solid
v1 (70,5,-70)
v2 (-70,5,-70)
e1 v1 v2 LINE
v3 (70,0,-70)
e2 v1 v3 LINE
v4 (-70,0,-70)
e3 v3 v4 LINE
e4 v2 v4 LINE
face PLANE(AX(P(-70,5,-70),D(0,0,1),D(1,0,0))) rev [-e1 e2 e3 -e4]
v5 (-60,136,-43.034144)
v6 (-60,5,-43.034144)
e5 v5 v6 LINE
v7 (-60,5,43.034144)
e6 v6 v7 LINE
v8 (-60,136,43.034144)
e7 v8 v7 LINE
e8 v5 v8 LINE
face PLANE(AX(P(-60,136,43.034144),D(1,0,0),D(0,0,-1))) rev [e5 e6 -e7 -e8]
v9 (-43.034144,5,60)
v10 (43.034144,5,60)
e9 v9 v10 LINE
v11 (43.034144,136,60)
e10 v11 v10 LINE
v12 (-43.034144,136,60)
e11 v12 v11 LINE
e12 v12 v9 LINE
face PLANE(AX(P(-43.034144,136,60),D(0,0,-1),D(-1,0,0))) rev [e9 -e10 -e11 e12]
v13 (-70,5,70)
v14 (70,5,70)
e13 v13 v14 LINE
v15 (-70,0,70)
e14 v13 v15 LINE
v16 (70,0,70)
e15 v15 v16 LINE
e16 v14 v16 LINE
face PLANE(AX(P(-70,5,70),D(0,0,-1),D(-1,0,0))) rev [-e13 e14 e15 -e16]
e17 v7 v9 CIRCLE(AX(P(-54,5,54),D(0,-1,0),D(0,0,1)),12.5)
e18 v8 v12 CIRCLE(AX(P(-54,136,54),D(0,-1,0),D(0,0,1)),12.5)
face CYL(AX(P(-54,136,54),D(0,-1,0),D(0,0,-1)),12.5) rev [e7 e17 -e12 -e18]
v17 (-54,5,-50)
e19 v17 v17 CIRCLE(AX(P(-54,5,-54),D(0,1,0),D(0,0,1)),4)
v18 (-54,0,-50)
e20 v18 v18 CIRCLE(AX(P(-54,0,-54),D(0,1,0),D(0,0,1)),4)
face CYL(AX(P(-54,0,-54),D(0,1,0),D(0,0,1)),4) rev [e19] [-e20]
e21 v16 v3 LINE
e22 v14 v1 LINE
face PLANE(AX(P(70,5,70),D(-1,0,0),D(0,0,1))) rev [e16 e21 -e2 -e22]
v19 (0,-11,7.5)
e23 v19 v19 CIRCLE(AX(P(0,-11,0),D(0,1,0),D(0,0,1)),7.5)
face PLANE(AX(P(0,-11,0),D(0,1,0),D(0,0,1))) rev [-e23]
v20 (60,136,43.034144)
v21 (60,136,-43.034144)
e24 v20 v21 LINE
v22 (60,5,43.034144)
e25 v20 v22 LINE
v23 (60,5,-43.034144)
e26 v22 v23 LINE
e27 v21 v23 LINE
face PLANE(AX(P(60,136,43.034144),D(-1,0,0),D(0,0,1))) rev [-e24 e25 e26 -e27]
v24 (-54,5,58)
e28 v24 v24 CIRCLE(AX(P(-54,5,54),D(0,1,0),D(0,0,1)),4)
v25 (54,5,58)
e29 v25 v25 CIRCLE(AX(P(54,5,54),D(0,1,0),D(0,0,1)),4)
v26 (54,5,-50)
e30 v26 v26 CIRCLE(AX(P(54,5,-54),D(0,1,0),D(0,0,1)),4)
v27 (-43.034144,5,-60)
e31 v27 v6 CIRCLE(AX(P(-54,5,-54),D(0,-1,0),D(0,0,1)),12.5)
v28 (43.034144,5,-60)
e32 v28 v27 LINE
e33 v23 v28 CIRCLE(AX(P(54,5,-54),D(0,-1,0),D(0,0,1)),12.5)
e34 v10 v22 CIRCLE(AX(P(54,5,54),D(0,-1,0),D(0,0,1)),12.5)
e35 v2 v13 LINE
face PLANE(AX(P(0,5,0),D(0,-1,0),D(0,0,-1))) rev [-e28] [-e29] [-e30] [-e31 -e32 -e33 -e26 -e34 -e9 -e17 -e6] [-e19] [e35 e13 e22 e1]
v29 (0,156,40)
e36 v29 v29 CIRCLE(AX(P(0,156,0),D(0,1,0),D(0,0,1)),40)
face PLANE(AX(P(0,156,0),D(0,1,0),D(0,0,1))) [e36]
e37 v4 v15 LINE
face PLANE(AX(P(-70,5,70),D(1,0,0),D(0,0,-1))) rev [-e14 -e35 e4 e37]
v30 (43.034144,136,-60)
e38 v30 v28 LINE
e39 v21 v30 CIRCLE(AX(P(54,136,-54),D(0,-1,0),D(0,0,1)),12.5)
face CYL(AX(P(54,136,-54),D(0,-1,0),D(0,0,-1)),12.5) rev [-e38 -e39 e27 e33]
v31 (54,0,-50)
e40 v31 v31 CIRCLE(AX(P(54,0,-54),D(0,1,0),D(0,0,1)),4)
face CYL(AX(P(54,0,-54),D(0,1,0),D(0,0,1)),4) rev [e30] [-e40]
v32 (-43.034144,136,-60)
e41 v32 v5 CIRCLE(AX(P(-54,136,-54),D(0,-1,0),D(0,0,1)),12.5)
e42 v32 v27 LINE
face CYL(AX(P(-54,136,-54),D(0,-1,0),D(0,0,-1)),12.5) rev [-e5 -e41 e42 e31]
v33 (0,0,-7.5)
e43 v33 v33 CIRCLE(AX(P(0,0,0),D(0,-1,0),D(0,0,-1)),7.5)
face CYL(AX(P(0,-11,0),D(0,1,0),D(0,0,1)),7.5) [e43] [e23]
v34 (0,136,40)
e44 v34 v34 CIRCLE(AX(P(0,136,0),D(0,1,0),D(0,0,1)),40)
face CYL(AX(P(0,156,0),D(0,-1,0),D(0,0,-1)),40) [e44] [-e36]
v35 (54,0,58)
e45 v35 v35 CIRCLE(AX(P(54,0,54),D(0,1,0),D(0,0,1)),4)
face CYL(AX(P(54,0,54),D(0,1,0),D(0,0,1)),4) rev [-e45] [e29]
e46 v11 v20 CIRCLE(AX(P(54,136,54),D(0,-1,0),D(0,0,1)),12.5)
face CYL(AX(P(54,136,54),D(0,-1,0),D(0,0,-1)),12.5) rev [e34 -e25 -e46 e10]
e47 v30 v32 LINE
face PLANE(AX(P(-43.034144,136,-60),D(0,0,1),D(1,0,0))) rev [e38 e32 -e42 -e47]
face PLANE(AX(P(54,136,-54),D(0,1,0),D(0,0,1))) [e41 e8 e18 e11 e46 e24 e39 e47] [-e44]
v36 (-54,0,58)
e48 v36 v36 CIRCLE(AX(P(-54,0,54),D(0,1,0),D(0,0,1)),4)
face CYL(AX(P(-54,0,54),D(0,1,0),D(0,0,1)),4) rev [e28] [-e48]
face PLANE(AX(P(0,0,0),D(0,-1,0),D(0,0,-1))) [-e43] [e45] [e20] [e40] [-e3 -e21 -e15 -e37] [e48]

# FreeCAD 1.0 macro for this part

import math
import FreeCAD as App
import Part
import Sketcher
Q = App.Units.Quantity

doc = App.newDocument("Part")
params = doc.addObject("Spreadsheet::Sheet", "Params")
for row, (alias, value) in enumerate([
    ("sketch1_width", "140 mm"),
    ("pad1_length", "5 mm"),
    ("sketch2_diameter", "8 mm"),
    ("pocket1_length", "5 mm"),
    ("sketch3_diameter", "15 mm"),
    ("pad2_length", "16 mm"),
    ("sketch4_radius", "12.5 mm"),
    ("pad3_length", "131 mm"),
    ("sketch5_diameter", "80 mm"),
    ("pad4_length", "20 mm"),
], start=1):
    params.set(f"A{row}", alias)
    params.set(f"B{row}", "=" + value)
    params.setAlias(f"B{row}", alias)

body = doc.addObject("PartDesign::Body", "Body")

sketch1 = body.newObject("Sketcher::SketchObject", "Sketch")
sketch1.AttachmentSupport = (doc.getObject("XZ_Plane"), [""])
sketch1.MapMode = "FlatFace"
sketch1.addGeometry([
    Part.LineSegment(App.Vector(-70, -70, 0), App.Vector(-70, 70, 0)),
    Part.LineSegment(App.Vector(-70, 70, 0), App.Vector(70, 70, 0)),
    Part.LineSegment(App.Vector(70, 70, 0), App.Vector(70, -70, 0)),
    Part.LineSegment(App.Vector(70, -70, 0), App.Vector(-70, -70, 0)),
], False)
sketch1.addConstraint([
    Sketcher.Constraint("Coincident", 0, 2, 1, 1),
    Sketcher.Constraint("Coincident", 1, 2, 2, 1),
    Sketcher.Constraint("Coincident", 2, 2, 3, 1),
    Sketcher.Constraint("Coincident", 3, 2, 0, 1),
    Sketcher.Constraint("Vertical", 0),
    Sketcher.Constraint("Horizontal", 1),
    Sketcher.Constraint("Vertical", 2),
    Sketcher.Constraint("Horizontal", 3),
    Sketcher.Constraint("Symmetric", 0, 2, 2, 2, -1, 1),
    Sketcher.Constraint("Equal", 3, 0),
    Sketcher.Constraint("DistanceX", 1, 1, 1, 2, Q("140 mm")),
])
sketch1.setExpression("Constraints[10]", "Params.sketch1_width")
pad1 = body.newObject("PartDesign::Pad", "Pad")
pad1.Profile = sketch1
pad1.setExpression("Length", "Params.pad1_length")
pad1.Reversed = True

sketch2 = body.newObject("Sketcher::SketchObject", "Sketch001")
sketch2.AttachmentSupport = (doc.getObject("XZ_Plane"), [""])
sketch2.MapMode = "FlatFace"
sketch2.AttachmentOffset = App.Placement(App.Vector(0, 0, -5), App.Rotation())
sketch2.addGeometry([
    Part.Circle(App.Vector(-54, -54, 0), App.Vector(0, 0, 1), 4),
    Part.Circle(App.Vector(54, -54, 0), App.Vector(0, 0, 1), 4),
    Part.Circle(App.Vector(54, 54, 0), App.Vector(0, 0, 1), 4),
    Part.Circle(App.Vector(-54, 54, 0), App.Vector(0, 0, 1), 4),
], False)
sketch2.addConstraint([
    Sketcher.Constraint("Equal", 0, 1),
    Sketcher.Constraint("Equal", 1, 2),
    Sketcher.Constraint("Equal", 2, 3),
    Sketcher.Constraint("Symmetric", 0, 3, 2, 3, -1, 1),
    Sketcher.Constraint("Symmetric", 1, 3, 3, 3, -1, 1),
    Sketcher.Constraint("Symmetric", 0, 3, 1, 3, -2),
    Sketcher.Constraint("Diameter", 0, Q("8 mm")),
    Sketcher.Constraint("DistanceX", 0, 3, -1, 1, Q("54 mm")),
    Sketcher.Constraint("DistanceY", 0, 3, -1, 1, Q("54 mm")),
])
sketch2.setExpression("Constraints[6]", "Params.sketch2_diameter")
pocket1 = body.newObject("PartDesign::Pocket", "Pocket")
pocket1.Profile = sketch2
pocket1.setExpression("Length", "Params.pocket1_length")
pocket1.Reversed = True

sketch3 = body.newObject("Sketcher::SketchObject", "Sketch002")
sketch3.AttachmentSupport = (doc.getObject("XZ_Plane"), [""])
sketch3.MapMode = "FlatFace"
sketch3.AttachmentOffset = App.Placement(App.Vector(0, 0, -5), App.Rotation())
sketch3.addGeometry(Part.Circle(App.Vector(0, 0, 0), App.Vector(0, 0, 1), 7.5), False)
sketch3.addConstraint([
    Sketcher.Constraint("Coincident", 0, 3, -1, 1),
    Sketcher.Constraint("Diameter", 0, Q("15 mm")),
])
sketch3.setExpression("Constraints[1]", "Params.sketch3_diameter")
pad2 = body.newObject("PartDesign::Pad", "Pad001")
pad2.Profile = sketch3
pad2.setExpression("Length", "Params.pad2_length")

sketch4 = body.newObject("Sketcher::SketchObject", "Sketch003")
sketch4.AttachmentSupport = (doc.getObject("XZ_Plane"), [""])
sketch4.MapMode = "FlatFace"
sketch4.AttachmentOffset = App.Placement(App.Vector(0, 0, -5), App.Rotation())
sketch4.addGeometry([
    Part.LineSegment(App.Vector(-43.034144, 60, 0), App.Vector(43.034144, 60, 0)),
    Part.ArcOfCircle(Part.Circle(App.Vector(54, 54, 0), App.Vector(0, 0, 1), 12.5), math.radians(151.314598), math.radians(298.685402)),
    Part.LineSegment(App.Vector(60, 43.034144, 0), App.Vector(60, -43.034144, 0)),
    Part.ArcOfCircle(Part.Circle(App.Vector(54, -54, 0), App.Vector(0, 0, 1), 12.5), math.radians(61.314598), math.radians(208.685402)),
    Part.LineSegment(App.Vector(43.034144, -60, 0), App.Vector(-43.034144, -60, 0)),
    Part.ArcOfCircle(Part.Circle(App.Vector(-54, -54, 0), App.Vector(0, 0, 1), 12.5), math.radians(-28.685402), math.radians(118.685402)),
    Part.LineSegment(App.Vector(-60, -43.034144, 0), App.Vector(-60, 43.034144, 0)),
    Part.ArcOfCircle(Part.Circle(App.Vector(-54, 54, 0), App.Vector(0, 0, 1), 12.5), math.radians(-118.685402), math.radians(28.685402)),
], False)
sketch4.addConstraint([
    Sketcher.Constraint("Coincident", 0, 2, 1, 1),
    Sketcher.Constraint("Coincident", 1, 2, 2, 1),
    Sketcher.Constraint("Coincident", 2, 2, 3, 1),
    Sketcher.Constraint("Coincident", 3, 2, 4, 1),
    Sketcher.Constraint("Coincident", 4, 2, 5, 1),
    Sketcher.Constraint("Coincident", 5, 2, 6, 1),
    Sketcher.Constraint("Coincident", 6, 2, 7, 1),
    Sketcher.Constraint("Coincident", 7, 2, 0, 1),
    Sketcher.Constraint("Horizontal", 0),
    Sketcher.Constraint("Vertical", 2),
    Sketcher.Constraint("Horizontal", 4),
    Sketcher.Constraint("Vertical", 6),
    Sketcher.Constraint("Equal", 1, 3),
    Sketcher.Constraint("Equal", 3, 5),
    Sketcher.Constraint("Equal", 5, 7),
    Sketcher.Constraint("Symmetric", 1, 3, 5, 3, -1, 1),
    Sketcher.Constraint("Symmetric", 3, 3, 7, 3, -1, 1),
    Sketcher.Constraint("Symmetric", 3, 3, 5, 3, -2),
    Sketcher.Constraint("Horizontal", 2, 2, 5, 2),
    Sketcher.Constraint("Vertical", 0, 2, 3, 2),
    Sketcher.Constraint("Equal", 4, 2),
    Sketcher.Constraint("Radius", 1, Q("12.5 mm")),
    Sketcher.Constraint("DistanceX", -1, 1, 1, 3, Q("54 mm")),
    Sketcher.Constraint("DistanceY", -1, 1, 1, 3, Q("54 mm")),
    Sketcher.Constraint("DistanceY", -1, 1, 0, 2, Q("60 mm")),
])
sketch4.setExpression("Constraints[21]", "Params.sketch4_radius")
pad3 = body.newObject("PartDesign::Pad", "Pad002")
pad3.Profile = sketch4
pad3.setExpression("Length", "Params.pad3_length")
pad3.Reversed = True

sketch5 = body.newObject("Sketcher::SketchObject", "Sketch004")
sketch5.AttachmentSupport = (doc.getObject("XZ_Plane"), [""])
sketch5.MapMode = "FlatFace"
sketch5.AttachmentOffset = App.Placement(App.Vector(0, 0, -136), App.Rotation())
sketch5.addGeometry(Part.Circle(App.Vector(0, 0, 0), App.Vector(0, 0, 1), 40), False)
sketch5.addConstraint([
    Sketcher.Constraint("Coincident", 0, 3, -1, 1),
    Sketcher.Constraint("Diameter", 0, Q("80 mm")),
])
sketch5.setExpression("Constraints[1]", "Params.sketch5_diameter")
pad4 = body.newObject("PartDesign::Pad", "Pad003")
pad4.Profile = sketch5
pad4.setExpression("Length", "Params.pad4_length")
pad4.Reversed = True

doc.recompute()
